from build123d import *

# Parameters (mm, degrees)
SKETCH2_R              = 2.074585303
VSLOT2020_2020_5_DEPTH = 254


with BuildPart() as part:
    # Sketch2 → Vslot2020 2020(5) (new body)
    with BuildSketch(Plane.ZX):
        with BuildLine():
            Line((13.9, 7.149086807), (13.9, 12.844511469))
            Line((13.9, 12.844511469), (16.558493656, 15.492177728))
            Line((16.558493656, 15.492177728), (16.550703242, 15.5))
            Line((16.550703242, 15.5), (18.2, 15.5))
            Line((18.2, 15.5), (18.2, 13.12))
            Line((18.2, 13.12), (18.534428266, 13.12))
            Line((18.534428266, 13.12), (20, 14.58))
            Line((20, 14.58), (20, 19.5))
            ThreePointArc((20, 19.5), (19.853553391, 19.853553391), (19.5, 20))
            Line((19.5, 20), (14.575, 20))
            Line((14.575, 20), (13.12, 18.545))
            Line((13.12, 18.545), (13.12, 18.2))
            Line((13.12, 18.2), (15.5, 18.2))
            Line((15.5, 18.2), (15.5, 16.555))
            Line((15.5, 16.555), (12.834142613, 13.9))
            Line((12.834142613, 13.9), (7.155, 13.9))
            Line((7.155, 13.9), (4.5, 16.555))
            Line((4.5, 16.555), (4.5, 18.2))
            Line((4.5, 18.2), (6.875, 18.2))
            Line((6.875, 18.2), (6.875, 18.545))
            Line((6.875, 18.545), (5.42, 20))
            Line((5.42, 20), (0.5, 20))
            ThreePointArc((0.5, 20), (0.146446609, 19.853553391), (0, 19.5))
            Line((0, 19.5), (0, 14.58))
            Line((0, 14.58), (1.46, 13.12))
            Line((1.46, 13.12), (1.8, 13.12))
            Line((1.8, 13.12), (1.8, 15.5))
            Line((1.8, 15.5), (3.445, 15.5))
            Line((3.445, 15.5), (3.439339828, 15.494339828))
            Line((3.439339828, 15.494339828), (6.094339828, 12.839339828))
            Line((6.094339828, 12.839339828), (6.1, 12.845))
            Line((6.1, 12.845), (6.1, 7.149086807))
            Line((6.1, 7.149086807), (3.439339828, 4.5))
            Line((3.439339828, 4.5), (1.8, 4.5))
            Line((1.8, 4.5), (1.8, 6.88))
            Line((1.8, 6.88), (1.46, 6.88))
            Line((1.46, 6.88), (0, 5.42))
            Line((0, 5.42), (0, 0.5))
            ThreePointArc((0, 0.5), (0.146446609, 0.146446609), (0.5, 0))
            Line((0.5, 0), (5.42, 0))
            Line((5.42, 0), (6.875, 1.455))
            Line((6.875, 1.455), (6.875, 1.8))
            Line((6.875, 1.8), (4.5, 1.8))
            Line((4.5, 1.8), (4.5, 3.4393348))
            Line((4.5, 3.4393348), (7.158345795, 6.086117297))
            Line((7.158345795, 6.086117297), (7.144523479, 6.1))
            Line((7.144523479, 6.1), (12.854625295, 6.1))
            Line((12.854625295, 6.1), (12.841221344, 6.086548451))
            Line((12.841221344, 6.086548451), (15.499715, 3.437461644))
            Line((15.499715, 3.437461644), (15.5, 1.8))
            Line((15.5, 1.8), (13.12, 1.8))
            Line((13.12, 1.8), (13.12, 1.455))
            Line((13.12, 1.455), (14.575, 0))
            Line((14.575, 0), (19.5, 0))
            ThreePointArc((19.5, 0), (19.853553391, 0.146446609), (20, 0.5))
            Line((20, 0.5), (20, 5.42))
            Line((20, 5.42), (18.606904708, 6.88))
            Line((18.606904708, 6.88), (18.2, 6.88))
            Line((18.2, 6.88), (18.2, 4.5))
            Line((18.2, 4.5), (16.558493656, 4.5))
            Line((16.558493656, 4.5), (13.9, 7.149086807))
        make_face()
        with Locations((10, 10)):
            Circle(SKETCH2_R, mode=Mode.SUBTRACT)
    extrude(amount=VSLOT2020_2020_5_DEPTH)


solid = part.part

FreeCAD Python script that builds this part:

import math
import FreeCAD as App
import Part
import Sketcher
Q = App.Units.Quantity

doc = App.newDocument("Part")
body = doc.addObject("PartDesign::Body", "Body")

# Sketch on XZ plane
sketch1 = body.newObject("Sketcher::SketchObject", "Sketch")
sketch1.AttachmentSupport = (doc.getObject("XZ_Plane"), [""])
sketch1.MapMode = "FlatFace"
sketch1.addGeometry([
    Part.LineSegment(App.Vector(7.149, 13.9, 0), App.Vector(12.845, 13.9, 0)),  # 0
    Part.LineSegment(App.Vector(12.845, 13.9, 0), App.Vector(15.492, 16.558, 0)),  # 1
    Part.LineSegment(App.Vector(15.492, 16.558, 0), App.Vector(15.5, 16.551, 0)),  # 2
    Part.LineSegment(App.Vector(15.5, 16.551, 0), App.Vector(15.5, 18.2, 0)),  # 3
    Part.LineSegment(App.Vector(15.5, 18.2, 0), App.Vector(13.12, 18.2, 0)),  # 4
    Part.LineSegment(App.Vector(13.12, 18.2, 0), App.Vector(13.12, 18.534, 0)),  # 5
    Part.LineSegment(App.Vector(13.12, 18.534, 0), App.Vector(14.58, 20, 0)),  # 6
    Part.LineSegment(App.Vector(14.58, 20, 0), App.Vector(19.5, 20, 0)),  # 7
    Part.ArcOfCircle(Part.Circle(App.Vector(19.5, 19.5, 0), App.Vector(0, 0, 1), 0.5), math.radians(0), math.radians(90)),  # 8
    Part.LineSegment(App.Vector(20, 19.5, 0), App.Vector(20, 14.575, 0)),  # 9
    Part.LineSegment(App.Vector(20, 14.575, 0), App.Vector(18.545, 13.12, 0)),  # 10
    Part.LineSegment(App.Vector(18.545, 13.12, 0), App.Vector(18.2, 13.12, 0)),  # 11
    Part.LineSegment(App.Vector(18.2, 13.12, 0), App.Vector(18.2, 15.5, 0)),  # 12
    Part.LineSegment(App.Vector(18.2, 15.5, 0), App.Vector(16.555, 15.5, 0)),  # 13
    Part.LineSegment(App.Vector(16.555, 15.5, 0), App.Vector(13.9, 12.834, 0)),  # 14
    Part.LineSegment(App.Vector(13.9, 12.834, 0), App.Vector(13.9, 7.155, 0)),  # 15
    Part.LineSegment(App.Vector(13.9, 7.155, 0), App.Vector(16.555, 4.5, 0)),  # 16
    Part.LineSegment(App.Vector(16.555, 4.5, 0), App.Vector(18.2, 4.5, 0)),  # 17
    Part.LineSegment(App.Vector(18.2, 4.5, 0), App.Vector(18.2, 6.875, 0)),  # 18
    Part.LineSegment(App.Vector(18.2, 6.875, 0), App.Vector(18.545, 6.875, 0)),  # 19
    Part.LineSegment(App.Vector(18.545, 6.875, 0), App.Vector(20, 5.42, 0)),  # 20
    Part.LineSegment(App.Vector(20, 5.42, 0), App.Vector(20, 0.5, 0)),  # 21
    Part.ArcOfCircle(Part.Circle(App.Vector(19.5, 0.5, 0), App.Vector(0, 0, 1), 0.5), math.radians(-90), math.radians(0)),  # 22
    Part.LineSegment(App.Vector(19.5, 0, 0), App.Vector(14.58, 0, 0)),  # 23
    Part.LineSegment(App.Vector(14.58, 0, 0), App.Vector(13.12, 1.46, 0)),  # 24
    Part.LineSegment(App.Vector(13.12, 1.46, 0), App.Vector(13.12, 1.8, 0)),  # 25
    Part.LineSegment(App.Vector(13.12, 1.8, 0), App.Vector(15.5, 1.8, 0)),  # 26
    Part.LineSegment(App.Vector(15.5, 1.8, 0), App.Vector(15.5, 3.445, 0)),  # 27
    Part.LineSegment(App.Vector(15.5, 3.445, 0), App.Vector(15.494, 3.439, 0)),  # 28
    Part.LineSegment(App.Vector(15.494, 3.439, 0), App.Vector(12.839, 6.094, 0)),  # 29
    Part.LineSegment(App.Vector(12.839, 6.094, 0), App.Vector(12.845, 6.1, 0)),  # 30
    Part.LineSegment(App.Vector(12.845, 6.1, 0), App.Vector(7.149, 6.1, 0)),  # 31
    Part.LineSegment(App.Vector(7.149, 6.1, 0), App.Vector(4.5, 3.439, 0)),  # 32
    Part.LineSegment(App.Vector(4.5, 3.439, 0), App.Vector(4.5, 1.8, 0)),  # 33
    Part.LineSegment(App.Vector(4.5, 1.8, 0), App.Vector(6.88, 1.8, 0)),  # 34
    Part.LineSegment(App.Vector(6.88, 1.8, 0), App.Vector(6.88, 1.46, 0)),  # 35
    Part.LineSegment(App.Vector(6.88, 1.46, 0), App.Vector(5.42, 0, 0)),  # 36
    Part.LineSegment(App.Vector(5.42, 0, 0), App.Vector(0.5, 0, 0)),  # 37
    Part.ArcOfCircle(Part.Circle(App.Vector(0.5, 0.5, 0), App.Vector(0, 0, 1), 0.5), math.radians(180), math.radians(270)),  # 38
    Part.LineSegment(App.Vector(0, 0.5, 0), App.Vector(0, 5.42, 0)),  # 39
    Part.LineSegment(App.Vector(0, 5.42, 0), App.Vector(1.455, 6.875, 0)),  # 40
    Part.LineSegment(App.Vector(1.455, 6.875, 0), App.Vector(1.8, 6.875, 0)),  # 41
    Part.LineSegment(App.Vector(1.8, 6.875, 0), App.Vector(1.8, 4.5, 0)),  # 42
    Part.LineSegment(App.Vector(1.8, 4.5, 0), App.Vector(3.439, 4.5, 0)),  # 43
    Part.LineSegment(App.Vector(3.439, 4.5, 0), App.Vector(6.086, 7.158, 0)),  # 44
    Part.LineSegment(App.Vector(6.086, 7.158, 0), App.Vector(6.1, 7.145, 0)),  # 45
    Part.LineSegment(App.Vector(6.1, 7.145, 0), App.Vector(6.1, 12.855, 0)),  # 46
    Part.LineSegment(App.Vector(6.1, 12.855, 0), App.Vector(6.087, 12.841, 0)),  # 47
    Part.LineSegment(App.Vector(6.087, 12.841, 0), App.Vector(3.437, 15.5, 0)),  # 48
    Part.LineSegment(App.Vector(3.437, 15.5, 0), App.Vector(1.8, 15.5, 0)),  # 49
    Part.LineSegment(App.Vector(1.8, 15.5, 0), App.Vector(1.8, 13.12, 0)),  # 50
    Part.LineSegment(App.Vector(1.8, 13.12, 0), App.Vector(1.455, 13.12, 0)),  # 51
    Part.LineSegment(App.Vector(1.455, 13.12, 0), App.Vector(0, 14.575, 0)),  # 52
    Part.LineSegment(App.Vector(0, 14.575, 0), App.Vector(0, 19.5, 0)),  # 53
    Part.ArcOfCircle(Part.Circle(App.Vector(0.5, 19.5, 0), App.Vector(0, 0, 1), 0.5), math.radians(90), math.radians(180)),  # 54
    Part.LineSegment(App.Vector(0.5, 20, 0), App.Vector(5.42, 20, 0)),  # 55
    Part.LineSegment(App.Vector(5.42, 20, 0), App.Vector(6.88, 18.607, 0)),  # 56
    Part.LineSegment(App.Vector(6.88, 18.607, 0), App.Vector(6.88, 18.2, 0)),  # 57
    Part.LineSegment(App.Vector(6.88, 18.2, 0), App.Vector(4.5, 18.2, 0)),  # 58
    Part.LineSegment(App.Vector(4.5, 18.2, 0), App.Vector(4.5, 16.558, 0)),  # 59
    Part.LineSegment(App.Vector(4.5, 16.558, 0), App.Vector(7.149, 13.9, 0)),  # 60
    Part.Circle(App.Vector(10, 10, 0), App.Vector(0, 0, 1), 2.075),  # 61
], False)
sketch1.addConstraint([
    Sketcher.Constraint("Coincident", 0, 2, 1, 1),
    Sketcher.Constraint("Coincident", 1, 2, 2, 1),
    Sketcher.Constraint("Coincident", 2, 2, 3, 1),
    Sketcher.Constraint("Coincident", 3, 2, 4, 1),
    Sketcher.Constraint("Coincident", 4, 2, 5, 1),
    Sketcher.Constraint("Coincident", 5, 2, 6, 1),
    Sketcher.Constraint("Coincident", 6, 2, 7, 1),
    Sketcher.Constraint("Tangent", 7, 2, 8, 2),
    Sketcher.Constraint("Tangent", 8, 1, 9, 1),
    Sketcher.Constraint("Coincident", 9, 2, 10, 1),
    Sketcher.Constraint("Coincident", 10, 2, 11, 1),
    Sketcher.Constraint("Coincident", 11, 2, 12, 1),
    Sketcher.Constraint("Coincident", 12, 2, 13, 1),
    Sketcher.Constraint("Coincident", 13, 2, 14, 1),
    Sketcher.Constraint("Coincident", 14, 2, 15, 1),
    Sketcher.Constraint("Coincident", 15, 2, 16, 1),
    Sketcher.Constraint("Coincident", 16, 2, 17, 1),
    Sketcher.Constraint("Coincident", 17, 2, 18, 1),
    Sketcher.Constraint("Coincident", 18, 2, 19, 1),
    Sketcher.Constraint("Coincident", 19, 2, 20, 1),
    Sketcher.Constraint("Coincident", 20, 2, 21, 1),
    Sketcher.Constraint("Tangent", 21, 2, 22, 2),
    Sketcher.Constraint("Tangent", 22, 1, 23, 1),
    Sketcher.Constraint("Coincident", 23, 2, 24, 1),
    Sketcher.Constraint("Coincident", 24, 2, 25, 1),
    Sketcher.Constraint("Coincident", 25, 2, 26, 1),
    Sketcher.Constraint("Coincident", 26, 2, 27, 1),
    Sketcher.Constraint("Coincident", 27, 2, 28, 1),
    Sketcher.Constraint("Coincident", 28, 2, 29, 1),
    Sketcher.Constraint("Coincident", 29, 2, 30, 1),
    Sketcher.Constraint("Coincident", 30, 2, 31, 1),
    Sketcher.Constraint("Coincident", 31, 2, 32, 1),
    Sketcher.Constraint("Coincident", 32, 2, 33, 1),
    Sketcher.Constraint("Coincident", 33, 2, 34, 1),
    Sketcher.Constraint("Coincident", 34, 2, 35, 1),
    Sketcher.Constraint("Coincident", 35, 2, 36, 1),
    Sketcher.Constraint("Coincident", 36, 2, 37, 1),
    Sketcher.Constraint("Tangent", 37, 2, 38, 2),
    Sketcher.Constraint("Tangent", 38, 1, 39, 1),
    Sketcher.Constraint("Coincident", 39, 2, 40, 1),
    Sketcher.Constraint("Coincident", 40, 2, 41, 1),
    Sketcher.Constraint("Coincident", 41, 2, 42, 1),
    Sketcher.Constraint("Coincident", 42, 2, 43, 1),
    Sketcher.Constraint("Coincident", 43, 2, 44, 1),
    Sketcher.Constraint("Coincident", 44, 2, 45, 1),
    Sketcher.Constraint("Coincident", 45, 2, 46, 1),
    Sketcher.Constraint("Coincident", 46, 2, 47, 1),
    Sketcher.Constraint("Coincident", 47, 2, 48, 1),
    Sketcher.Constraint("Coincident", 48, 2, 49, 1),
    Sketcher.Constraint("Coincident", 49, 2, 50, 1),
    Sketcher.Constraint("Coincident", 50, 2, 51, 1),
    Sketcher.Constraint("Coincident", 51, 2, 52, 1),
    Sketcher.Constraint("Coincident", 52, 2, 53, 1),
    Sketcher.Constraint("Tangent", 53, 2, 54, 2),
    Sketcher.Constraint("Tangent", 54, 1, 55, 1),
    Sketcher.Constraint("Coincident", 55, 2, 56, 1),
    Sketcher.Constraint("Coincident", 56, 2, 57, 1),
    Sketcher.Constraint("Coincident", 57, 2, 58, 1),
    Sketcher.Constraint("Coincident", 58, 2, 59, 1),
    Sketcher.Constraint("Coincident", 59, 2, 60, 1),
    Sketcher.Constraint("Coincident", 60, 2, 0, 1),
    Sketcher.Constraint("Horizontal", 0),
    Sketcher.Constraint("Vertical", 3),
    Sketcher.Constraint("Horizontal", 4),
    Sketcher.Constraint("Vertical", 5),
    Sketcher.Constraint("Horizontal", 7),
    Sketcher.Constraint("Vertical", 9),
    Sketcher.Constraint("Horizontal", 11),
    Sketcher.Constraint("Vertical", 12),
    Sketcher.Constraint("Horizontal", 13),
    Sketcher.Constraint("Vertical", 15),
    Sketcher.Constraint("Horizontal", 17),
    Sketcher.Constraint("Vertical", 18),
    Sketcher.Constraint("Horizontal", 19),
    Sketcher.Constraint("Vertical", 21),
    Sketcher.Constraint("Horizontal", 23),
    Sketcher.Constraint("Vertical", 25),
    Sketcher.Constraint("Horizontal", 26),
    Sketcher.Constraint("Vertical", 27),
    Sketcher.Constraint("Horizontal", 31),
    Sketcher.Constraint("Vertical", 33),
    Sketcher.Constraint("Horizontal", 34),
    Sketcher.Constraint("Vertical", 35),
    Sketcher.Constraint("Horizontal", 37),
    Sketcher.Constraint("Vertical", 39),
    Sketcher.Constraint("Horizontal", 41),
    Sketcher.Constraint("Vertical", 42),
    Sketcher.Constraint("Horizontal", 43),
    Sketcher.Constraint("Vertical", 46),
    Sketcher.Constraint("Vertical", 50),
    Sketcher.Constraint("Horizontal", 51),
    Sketcher.Constraint("Vertical", 53),
    Sketcher.Constraint("Horizontal", 55),
    Sketcher.Constraint("Vertical", 57),
    Sketcher.Constraint("Horizontal", 58),
    Sketcher.Constraint("Vertical", 59),
    Sketcher.Constraint("Equal", 8, 22),
    Sketcher.Constraint("Equal", 22, 38),
    Sketcher.Constraint("Equal", 38, 54),
    Sketcher.Constraint("PointOnObject", 22, 1, -1),
    Sketcher.Constraint("PointOnObject", 36, 2, -1),
    Sketcher.Constraint("PointOnObject", 38, 1, -2),
    Sketcher.Constraint("PointOnObject", 52, 2, -2),
    Sketcher.Constraint("Perpendicular", 1, 2),
    Sketcher.Constraint("Perpendicular", 2, 14),
    Sketcher.Constraint("Perpendicular", 10, 16),
    Sketcher.Constraint("Parallel", 16, 20),
    Sketcher.Constraint("Parallel", 20, 24),
    Sketcher.Constraint("Perpendicular", 24, 28),
    Sketcher.Constraint("Parallel", 24, 29),
    Sketcher.Constraint("Perpendicular", 29, 30),
    Sketcher.Constraint("Parallel", 30, 36),
    Sketcher.Constraint("Parallel", 36, 40),
    Sketcher.Constraint("Parallel", 32, 44),
    Sketcher.Constraint("Perpendicular", 44, 45),
    Sketcher.Constraint("Perpendicular", 47, 48),
    Sketcher.Constraint("Perpendicular", 40, 52),
    Sketcher.Constraint("Parallel", 48, 60),
    Sketcher.Constraint("Horizontal", 8, 3, 54, 3),
    Sketcher.Constraint("Horizontal", 28, 2, 32, 2),
    Sketcher.Constraint("Horizontal", 26, 2, 33, 2),
    Sketcher.Constraint("Horizontal", 24, 2, 35, 2),
    Sketcher.Constraint("Horizontal", 20, 2, 39, 2),
    Sketcher.Constraint("Horizontal", 19, 2, 40, 2),
    Sketcher.Constraint("Horizontal", 17, 2, 42, 2),
    Sketcher.Constraint("Horizontal", 13, 2, 49, 2),
    Sketcher.Constraint("Horizontal", 11, 2, 50, 2),
    Sketcher.Constraint("Horizontal", 9, 2, 52, 2),
    Sketcher.Constraint("Horizontal", 4, 2, 57, 2),
    Sketcher.Constraint("Horizontal", 1, 2, 59, 2),
    Sketcher.Constraint("Vertical", 8, 3, 22, 3),
    Sketcher.Constraint("Vertical", 13, 2, 16, 2),
    Sketcher.Constraint("Vertical", 12, 2, 17, 2),
    Sketcher.Constraint("Vertical", 10, 2, 19, 2),
    Sketcher.Constraint("Vertical", 6, 2, 23, 2),
    Sketcher.Constraint("Vertical", 5, 2, 24, 2),
    Sketcher.Constraint("Vertical", 3, 2, 26, 2),
    Sketcher.Constraint("Vertical", 42, 2, 49, 2),
    Sketcher.Constraint("Vertical", 40, 2, 51, 2),
    Sketcher.Constraint("Vertical", 36, 2, 55, 2),
    Sketcher.Constraint("Vertical", 35, 2, 56, 2),
    Sketcher.Constraint("Vertical", 33, 2, 58, 2),
    Sketcher.Constraint("Vertical", 31, 2, 60, 2),
    Sketcher.Constraint("Equal", 26, 34),
    Sketcher.Constraint("Equal", 23, 37),
    Sketcher.Constraint("Equal", 19, 41),
    Sketcher.Constraint("Equal", 58, 12),
    Sketcher.Constraint("Equal", 55, 21),
    Sketcher.Constraint("Equal", 17, 27),
    Sketcher.Constraint("Equal", 16, 29),
    Sketcher.Constraint("Equal", 28, 30),
    Sketcher.Constraint("Equal", 48, 60),
    Sketcher.Constraint("Radius", 8, Q("0.5 mm")),
    Sketcher.Constraint("DistanceX", -1, 1, 61, 3, Q("10 mm")),
    Sketcher.Constraint("DistanceY", -1, 1, 61, 3, Q("10 mm")),
    Sketcher.Constraint("DistanceY", -1, 1, 6, 2, Q("20 mm")),
    Sketcher.Constraint("DistanceX", -1, 1, 8, 1, Q("20 mm")),
    Sketcher.Constraint("DistanceX", 4, 2, 4, 1, Q("2.38 mm")),
    Sketcher.Constraint("DistanceX", 7, 1, 7, 2, Q("4.92 mm")),
    Sketcher.Constraint("DistanceY", 25, 1, 25, 2, Q("0.34 mm")),
    Sketcher.Constraint("DistanceY", -1, 1, 0, 2, Q("13.9 mm")),
    Sketcher.Constraint("DistanceX", -1, 1, 2, 2, Q("15.5 mm")),
    Sketcher.Constraint("DistanceY", -1, 1, 3, 2, Q("18.2 mm")),
    Sketcher.Constraint("DistanceX", -1, 1, 11, 2, Q("18.2 mm")),
    Sketcher.Constraint("DistanceY", -1, 1, 12, 2, Q("15.5 mm")),
    Sketcher.Constraint("DistanceX", -1, 1, 14, 2, Q("13.9 mm")),
    Sketcher.Constraint("DistanceY", -1, 1, 16, 2, Q("4.5 mm")),
    Sketcher.Constraint("DistanceX", -1, 1, 45, 2, Q("6.1 mm")),
    Sketcher.Constraint("Diameter", 61, Q("4.149171 mm")),
    Sketcher.Constraint("DistanceX", 11, 2, 11, 1, Q("0.345 mm")),
    Sketcher.Constraint("DistanceX", 13, 2, 13, 1, Q("1.645 mm")),
    Sketcher.Constraint("DistanceY", 46, 1, 46, 2, Q("5.710102 mm")),
    Sketcher.Constraint("Distance", 44, Q("3.751301 mm")),
    Sketcher.Constraint("DistanceY", 5, 1, 5, 2, Q("0.334428 mm")),
    Sketcher.Constraint("DistanceY", 33, 2, 33, 1, Q("1.63934 mm")),
    Sketcher.Constraint("Distance", 1, Q("3.752029 mm")),
    Sketcher.Constraint("Distance", 2, Q("0.01104 mm")),
    Sketcher.Constraint("Distance", 45, Q("0.01959 mm")),
    Sketcher.Constraint("Distance", 47, Q("0.01899 mm")),
    Sketcher.Constraint("Distance", 49, Q("1.637462 mm")),
    Sketcher.Constraint("DistanceX", 0, 1, 0, 2, Q("5.695425 mm")),
    Sketcher.Constraint("DistanceY", 57, 2, 57, 1, Q("0.406905 mm")),
])
pad1 = body.newObject("PartDesign::Pad", "Pad")
pad1.Profile = sketch1
pad1.Length = 254
pad1.Reversed = True

doc.recompute()
